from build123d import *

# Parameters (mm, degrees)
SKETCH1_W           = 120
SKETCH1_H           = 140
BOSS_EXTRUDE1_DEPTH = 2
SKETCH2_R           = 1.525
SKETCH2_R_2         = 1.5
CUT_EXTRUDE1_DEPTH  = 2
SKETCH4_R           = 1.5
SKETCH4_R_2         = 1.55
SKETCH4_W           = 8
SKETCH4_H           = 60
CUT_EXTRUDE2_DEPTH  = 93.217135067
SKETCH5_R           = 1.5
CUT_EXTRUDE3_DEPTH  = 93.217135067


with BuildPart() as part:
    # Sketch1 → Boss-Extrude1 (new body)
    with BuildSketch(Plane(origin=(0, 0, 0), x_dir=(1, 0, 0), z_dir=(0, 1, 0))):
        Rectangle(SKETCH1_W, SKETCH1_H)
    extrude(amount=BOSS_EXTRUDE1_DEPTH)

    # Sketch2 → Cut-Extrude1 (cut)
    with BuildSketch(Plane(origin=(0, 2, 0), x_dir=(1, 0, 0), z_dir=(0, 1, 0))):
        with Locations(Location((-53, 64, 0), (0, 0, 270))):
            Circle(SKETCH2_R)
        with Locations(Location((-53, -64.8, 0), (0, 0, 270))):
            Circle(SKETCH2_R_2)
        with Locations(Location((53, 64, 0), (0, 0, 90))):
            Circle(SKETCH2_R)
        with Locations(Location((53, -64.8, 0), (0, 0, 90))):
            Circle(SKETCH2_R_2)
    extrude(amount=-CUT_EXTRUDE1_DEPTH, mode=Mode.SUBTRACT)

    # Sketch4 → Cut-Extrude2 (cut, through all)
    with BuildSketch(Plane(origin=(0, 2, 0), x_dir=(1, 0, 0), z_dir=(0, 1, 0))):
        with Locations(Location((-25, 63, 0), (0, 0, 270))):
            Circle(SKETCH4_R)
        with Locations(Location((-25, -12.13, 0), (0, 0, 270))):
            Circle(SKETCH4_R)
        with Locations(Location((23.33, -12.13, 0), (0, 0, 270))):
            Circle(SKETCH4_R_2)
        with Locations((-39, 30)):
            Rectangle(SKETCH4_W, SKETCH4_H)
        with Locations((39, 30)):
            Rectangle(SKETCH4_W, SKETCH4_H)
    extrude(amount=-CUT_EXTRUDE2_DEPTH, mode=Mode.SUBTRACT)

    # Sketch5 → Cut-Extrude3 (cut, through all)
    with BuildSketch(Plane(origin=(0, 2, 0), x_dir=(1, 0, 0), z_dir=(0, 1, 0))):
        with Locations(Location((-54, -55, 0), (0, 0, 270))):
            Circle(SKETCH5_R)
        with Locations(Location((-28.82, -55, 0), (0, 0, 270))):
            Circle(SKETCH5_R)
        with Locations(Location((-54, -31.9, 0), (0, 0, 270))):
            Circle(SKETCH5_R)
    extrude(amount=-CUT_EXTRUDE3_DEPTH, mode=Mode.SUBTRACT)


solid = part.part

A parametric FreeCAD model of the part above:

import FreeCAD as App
import Part
import Sketcher
Q = App.Units.Quantity


def add_polygon(sketch, points):
    """Adds a closed chain of lines whose ends are joined by coincident constraints."""
    first, n = sketch.GeometryCount, len(points)
    for a, b in zip(points, points[1:] + points[:1]):
        sketch.addGeometry(Part.LineSegment(App.Vector(*a, 0), App.Vector(*b, 0)), False)
    for i in range(n):
        sketch.addConstraint(Sketcher.Constraint("Coincident", first + i, 2, first + (i + 1) % n, 1))

doc = App.newDocument("Part")
body = doc.addObject("PartDesign::Body", "Body")

# Sketch on XZ plane
sketch1 = doc.addObject("Sketcher::SketchObject", "Sketch")
body.addObject(sketch1)
sketch1.AttachmentSupport = (doc.XZ_Plane, [""])
sketch1.MapMode = "FlatFace"
add_polygon(sketch1, [(-60, -70), (-60, 70), (60, 70), (60, -70)])  # lines 0-3
sketch1.addConstraint([
    Sketcher.Constraint("Vertical", 0),
    Sketcher.Constraint("Horizontal", 1),
    Sketcher.Constraint("Vertical", 2),
    Sketcher.Constraint("Horizontal", 3),
    Sketcher.Constraint("Symmetric", 0, 2, 2, 2, -1, 1),
    Sketcher.Constraint("DistanceX", 1, 1, 1, 2, Q("120 mm")),
    Sketcher.Constraint("DistanceY", 0, 1, 0, 2, Q("140 mm")),
])
pad1 = doc.addObject("PartDesign::Pad", "Pad")
body.addObject(pad1)
pad1.Profile = sketch1
pad1.Length = 2
pad1.Reversed = True

# Sketch on XZ plane
sketch2 = doc.addObject("Sketcher::SketchObject", "Sketch001")
body.addObject(sketch2)
sketch2.AttachmentSupport = (doc.XZ_Plane, [""])
sketch2.MapMode = "FlatFace"
sketch2.AttachmentOffset = App.Placement(App.Vector(0, 0, -2), App.Rotation())
sketch2.addGeometry([
    Part.Circle(App.Vector(-53, -64, 0), App.Vector(0, 0, 1), 1.525),
    Part.Circle(App.Vector(-53, 64.8, 0), App.Vector(0, 0, 1), 1.5),
    Part.Circle(App.Vector(53, -64, 0), App.Vector(0, 0, 1), 1.525),
    Part.Circle(App.Vector(53, 64.8, 0), App.Vector(0, 0, 1), 1.5),
], False)
sketch2.addConstraint([
    Sketcher.Constraint("Equal", 0, 2),
    Sketcher.Constraint("Equal", 1, 3),
    Sketcher.Constraint("Symmetric", 0, 3, 2, 3, -2),
    Sketcher.Constraint("Symmetric", 1, 3, 3, 3, -2),
    Sketcher.Constraint("Vertical", 0, 3, 1, 3),
    Sketcher.Constraint("Diameter", 1, Q("3 mm")),
    Sketcher.Constraint("Diameter", 0, Q("3.05 mm")),
    Sketcher.Constraint("DistanceX", 0, 3, -1, 1, Q("53 mm")),
    Sketcher.Constraint("DistanceY", 0, 3, -1, 1, Q("64 mm")),
    Sketcher.Constraint("DistanceY", -1, 1, 1, 3, Q("64.8 mm")),
])
pocket1 = doc.addObject("PartDesign::Pocket", "Pocket")
body.addObject(pocket1)
pocket1.Profile = sketch2
pocket1.Length = 2
pocket1.Reversed = True

# Sketch on XZ plane
sketch3 = doc.addObject("Sketcher::SketchObject", "Sketch002")
body.addObject(sketch3)
sketch3.AttachmentSupport = (doc.XZ_Plane, [""])
sketch3.MapMode = "FlatFace"
sketch3.AttachmentOffset = App.Placement(App.Vector(0, 0, -2), App.Rotation())
sketch3.addGeometry(Part.Circle(App.Vector(-25, -63, 0), App.Vector(0, 0, 1), 1.5), False)  # 0
sketch3.addGeometry(Part.Circle(App.Vector(-25, 12.13, 0), App.Vector(0, 0, 1), 1.5), False)  # 1
sketch3.addGeometry(Part.Circle(App.Vector(23.33, 12.13, 0), App.Vector(0, 0, 1), 1.55), False)  # 2
add_polygon(sketch3, [(-43, -60), (-43, 0), (-35, 0), (-35, -60)])  # lines 3-6
add_polygon(sketch3, [(35, -60), (35, 0), (43, 0), (43, -60)])  # lines 7-10
sketch3.addConstraint([
    Sketcher.Constraint("Vertical", 3),
    Sketcher.Constraint("Horizontal", 4),
    Sketcher.Constraint("Vertical", 5),
    Sketcher.Constraint("Horizontal", 6),
    Sketcher.Constraint("Vertical", 7),
    Sketcher.Constraint("Horizontal", 8),
    Sketcher.Constraint("Vertical", 9),
    Sketcher.Constraint("Horizontal", 10),
    Sketcher.Constraint("Equal", 0, 1),
    Sketcher.Constraint("Symmetric", 4, 2, 7, 2, -1, 1),
    Sketcher.Constraint("Symmetric", 3, 2, 8, 2, -2),
    Sketcher.Constraint("Horizontal", 1, 3, 2, 3),
    Sketcher.Constraint("Horizontal", 6, 2, 9, 2),
    Sketcher.Constraint("Vertical", 0, 3, 1, 3),
    Sketcher.Constraint("Diameter", 0, Q("3 mm")),
    Sketcher.Constraint("Diameter", 2, Q("3.1 mm")),
    Sketcher.Constraint("DistanceX", 4, 1, 4, 2, Q("8 mm")),
    Sketcher.Constraint("DistanceY", 3, 1, 3, 2, Q("60 mm")),
    Sketcher.Constraint("DistanceX", 0, 3, -1, 1, Q("25 mm")),
    Sketcher.Constraint("DistanceY", 0, 3, -1, 1, Q("63 mm")),
    Sketcher.Constraint("DistanceX", 3, 2, -1, 1, Q("43 mm")),
    Sketcher.Constraint("DistanceY", -1, 1, 1, 3, Q("12.13 mm")),
    Sketcher.Constraint("DistanceX", -1, 1, 2, 3, Q("23.33 mm")),
])
pocket2 = doc.addObject("PartDesign::Pocket", "Pocket001")
body.addObject(pocket2)
pocket2.Profile = sketch3
pocket2.Type = "ThroughAll"
pocket2.Reversed = True

# Sketch on XZ plane
sketch4 = doc.addObject("Sketcher::SketchObject", "Sketch003")
body.addObject(sketch4)
sketch4.AttachmentSupport = (doc.XZ_Plane, [""])
sketch4.MapMode = "FlatFace"
sketch4.AttachmentOffset = App.Placement(App.Vector(0, 0, -2), App.Rotation())
sketch4.addGeometry([
    Part.Circle(App.Vector(-54, 55, 0), App.Vector(0, 0, 1), 1.5),
    Part.Circle(App.Vector(-28.82, 55, 0), App.Vector(0, 0, 1), 1.5),
    Part.Circle(App.Vector(-54, 31.9, 0), App.Vector(0, 0, 1), 1.5),
], False)
sketch4.addConstraint([
    Sketcher.Constraint("Equal", 0, 1),
    Sketcher.Constraint("Equal", 1, 2),
    Sketcher.Constraint("Horizontal", 0, 3, 1, 3),
    Sketcher.Constraint("Vertical", 0, 3, 2, 3),
    Sketcher.Constraint("Diameter", 0, Q("3 mm")),
    Sketcher.Constraint("DistanceX", 0, 3, -1, 1, Q("54 mm")),
    Sketcher.Constraint("DistanceY", -1, 1, 0, 3, Q("55 mm")),
    Sketcher.Constraint("DistanceY", -1, 1, 2, 3, Q("31.9 mm")),
    Sketcher.Constraint("DistanceX", 1, 3, -1, 1, Q("28.82 mm")),
])
pocket3 = doc.addObject("PartDesign::Pocket", "Pocket002")
body.addObject(pocket3)
pocket3.Profile = sketch4
pocket3.Type = "ThroughAll"
pocket3.Reversed = True

doc.recompute()
